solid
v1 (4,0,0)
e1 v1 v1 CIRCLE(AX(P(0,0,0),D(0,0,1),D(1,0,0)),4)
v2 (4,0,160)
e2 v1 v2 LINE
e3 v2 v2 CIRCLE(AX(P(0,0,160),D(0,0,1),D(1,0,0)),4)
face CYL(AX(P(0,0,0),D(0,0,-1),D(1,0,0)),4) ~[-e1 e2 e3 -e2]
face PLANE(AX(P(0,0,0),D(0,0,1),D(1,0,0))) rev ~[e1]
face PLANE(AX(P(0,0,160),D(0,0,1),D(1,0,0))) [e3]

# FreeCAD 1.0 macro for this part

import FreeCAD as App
import Part
import Sketcher
from FreeCAD import Vector

doc = App.newDocument("Part")
body = doc.addObject("PartDesign::Body", "Body")

sketch1 = body.newObject("Sketcher::SketchObject", "Sketch")
sketch1.AttachmentSupport = (doc.getObject("XY_Plane"), [""])
sketch1.MapMode = "FlatFace"
sketch1.addGeometry(Part.Circle(Vector(0, 0, 0), Vector(0, 0, 1), 4), False)
sketch1.addConstraint([
    Sketcher.Constraint("Coincident", 0, 3, -1, 1),
    Sketcher.Constraint("Diameter", 0, 8.0),
])
pad1 = body.newObject("PartDesign::Pad", "Pad")
pad1.Profile = sketch1
pad1.Length = 160

doc.recompute()
